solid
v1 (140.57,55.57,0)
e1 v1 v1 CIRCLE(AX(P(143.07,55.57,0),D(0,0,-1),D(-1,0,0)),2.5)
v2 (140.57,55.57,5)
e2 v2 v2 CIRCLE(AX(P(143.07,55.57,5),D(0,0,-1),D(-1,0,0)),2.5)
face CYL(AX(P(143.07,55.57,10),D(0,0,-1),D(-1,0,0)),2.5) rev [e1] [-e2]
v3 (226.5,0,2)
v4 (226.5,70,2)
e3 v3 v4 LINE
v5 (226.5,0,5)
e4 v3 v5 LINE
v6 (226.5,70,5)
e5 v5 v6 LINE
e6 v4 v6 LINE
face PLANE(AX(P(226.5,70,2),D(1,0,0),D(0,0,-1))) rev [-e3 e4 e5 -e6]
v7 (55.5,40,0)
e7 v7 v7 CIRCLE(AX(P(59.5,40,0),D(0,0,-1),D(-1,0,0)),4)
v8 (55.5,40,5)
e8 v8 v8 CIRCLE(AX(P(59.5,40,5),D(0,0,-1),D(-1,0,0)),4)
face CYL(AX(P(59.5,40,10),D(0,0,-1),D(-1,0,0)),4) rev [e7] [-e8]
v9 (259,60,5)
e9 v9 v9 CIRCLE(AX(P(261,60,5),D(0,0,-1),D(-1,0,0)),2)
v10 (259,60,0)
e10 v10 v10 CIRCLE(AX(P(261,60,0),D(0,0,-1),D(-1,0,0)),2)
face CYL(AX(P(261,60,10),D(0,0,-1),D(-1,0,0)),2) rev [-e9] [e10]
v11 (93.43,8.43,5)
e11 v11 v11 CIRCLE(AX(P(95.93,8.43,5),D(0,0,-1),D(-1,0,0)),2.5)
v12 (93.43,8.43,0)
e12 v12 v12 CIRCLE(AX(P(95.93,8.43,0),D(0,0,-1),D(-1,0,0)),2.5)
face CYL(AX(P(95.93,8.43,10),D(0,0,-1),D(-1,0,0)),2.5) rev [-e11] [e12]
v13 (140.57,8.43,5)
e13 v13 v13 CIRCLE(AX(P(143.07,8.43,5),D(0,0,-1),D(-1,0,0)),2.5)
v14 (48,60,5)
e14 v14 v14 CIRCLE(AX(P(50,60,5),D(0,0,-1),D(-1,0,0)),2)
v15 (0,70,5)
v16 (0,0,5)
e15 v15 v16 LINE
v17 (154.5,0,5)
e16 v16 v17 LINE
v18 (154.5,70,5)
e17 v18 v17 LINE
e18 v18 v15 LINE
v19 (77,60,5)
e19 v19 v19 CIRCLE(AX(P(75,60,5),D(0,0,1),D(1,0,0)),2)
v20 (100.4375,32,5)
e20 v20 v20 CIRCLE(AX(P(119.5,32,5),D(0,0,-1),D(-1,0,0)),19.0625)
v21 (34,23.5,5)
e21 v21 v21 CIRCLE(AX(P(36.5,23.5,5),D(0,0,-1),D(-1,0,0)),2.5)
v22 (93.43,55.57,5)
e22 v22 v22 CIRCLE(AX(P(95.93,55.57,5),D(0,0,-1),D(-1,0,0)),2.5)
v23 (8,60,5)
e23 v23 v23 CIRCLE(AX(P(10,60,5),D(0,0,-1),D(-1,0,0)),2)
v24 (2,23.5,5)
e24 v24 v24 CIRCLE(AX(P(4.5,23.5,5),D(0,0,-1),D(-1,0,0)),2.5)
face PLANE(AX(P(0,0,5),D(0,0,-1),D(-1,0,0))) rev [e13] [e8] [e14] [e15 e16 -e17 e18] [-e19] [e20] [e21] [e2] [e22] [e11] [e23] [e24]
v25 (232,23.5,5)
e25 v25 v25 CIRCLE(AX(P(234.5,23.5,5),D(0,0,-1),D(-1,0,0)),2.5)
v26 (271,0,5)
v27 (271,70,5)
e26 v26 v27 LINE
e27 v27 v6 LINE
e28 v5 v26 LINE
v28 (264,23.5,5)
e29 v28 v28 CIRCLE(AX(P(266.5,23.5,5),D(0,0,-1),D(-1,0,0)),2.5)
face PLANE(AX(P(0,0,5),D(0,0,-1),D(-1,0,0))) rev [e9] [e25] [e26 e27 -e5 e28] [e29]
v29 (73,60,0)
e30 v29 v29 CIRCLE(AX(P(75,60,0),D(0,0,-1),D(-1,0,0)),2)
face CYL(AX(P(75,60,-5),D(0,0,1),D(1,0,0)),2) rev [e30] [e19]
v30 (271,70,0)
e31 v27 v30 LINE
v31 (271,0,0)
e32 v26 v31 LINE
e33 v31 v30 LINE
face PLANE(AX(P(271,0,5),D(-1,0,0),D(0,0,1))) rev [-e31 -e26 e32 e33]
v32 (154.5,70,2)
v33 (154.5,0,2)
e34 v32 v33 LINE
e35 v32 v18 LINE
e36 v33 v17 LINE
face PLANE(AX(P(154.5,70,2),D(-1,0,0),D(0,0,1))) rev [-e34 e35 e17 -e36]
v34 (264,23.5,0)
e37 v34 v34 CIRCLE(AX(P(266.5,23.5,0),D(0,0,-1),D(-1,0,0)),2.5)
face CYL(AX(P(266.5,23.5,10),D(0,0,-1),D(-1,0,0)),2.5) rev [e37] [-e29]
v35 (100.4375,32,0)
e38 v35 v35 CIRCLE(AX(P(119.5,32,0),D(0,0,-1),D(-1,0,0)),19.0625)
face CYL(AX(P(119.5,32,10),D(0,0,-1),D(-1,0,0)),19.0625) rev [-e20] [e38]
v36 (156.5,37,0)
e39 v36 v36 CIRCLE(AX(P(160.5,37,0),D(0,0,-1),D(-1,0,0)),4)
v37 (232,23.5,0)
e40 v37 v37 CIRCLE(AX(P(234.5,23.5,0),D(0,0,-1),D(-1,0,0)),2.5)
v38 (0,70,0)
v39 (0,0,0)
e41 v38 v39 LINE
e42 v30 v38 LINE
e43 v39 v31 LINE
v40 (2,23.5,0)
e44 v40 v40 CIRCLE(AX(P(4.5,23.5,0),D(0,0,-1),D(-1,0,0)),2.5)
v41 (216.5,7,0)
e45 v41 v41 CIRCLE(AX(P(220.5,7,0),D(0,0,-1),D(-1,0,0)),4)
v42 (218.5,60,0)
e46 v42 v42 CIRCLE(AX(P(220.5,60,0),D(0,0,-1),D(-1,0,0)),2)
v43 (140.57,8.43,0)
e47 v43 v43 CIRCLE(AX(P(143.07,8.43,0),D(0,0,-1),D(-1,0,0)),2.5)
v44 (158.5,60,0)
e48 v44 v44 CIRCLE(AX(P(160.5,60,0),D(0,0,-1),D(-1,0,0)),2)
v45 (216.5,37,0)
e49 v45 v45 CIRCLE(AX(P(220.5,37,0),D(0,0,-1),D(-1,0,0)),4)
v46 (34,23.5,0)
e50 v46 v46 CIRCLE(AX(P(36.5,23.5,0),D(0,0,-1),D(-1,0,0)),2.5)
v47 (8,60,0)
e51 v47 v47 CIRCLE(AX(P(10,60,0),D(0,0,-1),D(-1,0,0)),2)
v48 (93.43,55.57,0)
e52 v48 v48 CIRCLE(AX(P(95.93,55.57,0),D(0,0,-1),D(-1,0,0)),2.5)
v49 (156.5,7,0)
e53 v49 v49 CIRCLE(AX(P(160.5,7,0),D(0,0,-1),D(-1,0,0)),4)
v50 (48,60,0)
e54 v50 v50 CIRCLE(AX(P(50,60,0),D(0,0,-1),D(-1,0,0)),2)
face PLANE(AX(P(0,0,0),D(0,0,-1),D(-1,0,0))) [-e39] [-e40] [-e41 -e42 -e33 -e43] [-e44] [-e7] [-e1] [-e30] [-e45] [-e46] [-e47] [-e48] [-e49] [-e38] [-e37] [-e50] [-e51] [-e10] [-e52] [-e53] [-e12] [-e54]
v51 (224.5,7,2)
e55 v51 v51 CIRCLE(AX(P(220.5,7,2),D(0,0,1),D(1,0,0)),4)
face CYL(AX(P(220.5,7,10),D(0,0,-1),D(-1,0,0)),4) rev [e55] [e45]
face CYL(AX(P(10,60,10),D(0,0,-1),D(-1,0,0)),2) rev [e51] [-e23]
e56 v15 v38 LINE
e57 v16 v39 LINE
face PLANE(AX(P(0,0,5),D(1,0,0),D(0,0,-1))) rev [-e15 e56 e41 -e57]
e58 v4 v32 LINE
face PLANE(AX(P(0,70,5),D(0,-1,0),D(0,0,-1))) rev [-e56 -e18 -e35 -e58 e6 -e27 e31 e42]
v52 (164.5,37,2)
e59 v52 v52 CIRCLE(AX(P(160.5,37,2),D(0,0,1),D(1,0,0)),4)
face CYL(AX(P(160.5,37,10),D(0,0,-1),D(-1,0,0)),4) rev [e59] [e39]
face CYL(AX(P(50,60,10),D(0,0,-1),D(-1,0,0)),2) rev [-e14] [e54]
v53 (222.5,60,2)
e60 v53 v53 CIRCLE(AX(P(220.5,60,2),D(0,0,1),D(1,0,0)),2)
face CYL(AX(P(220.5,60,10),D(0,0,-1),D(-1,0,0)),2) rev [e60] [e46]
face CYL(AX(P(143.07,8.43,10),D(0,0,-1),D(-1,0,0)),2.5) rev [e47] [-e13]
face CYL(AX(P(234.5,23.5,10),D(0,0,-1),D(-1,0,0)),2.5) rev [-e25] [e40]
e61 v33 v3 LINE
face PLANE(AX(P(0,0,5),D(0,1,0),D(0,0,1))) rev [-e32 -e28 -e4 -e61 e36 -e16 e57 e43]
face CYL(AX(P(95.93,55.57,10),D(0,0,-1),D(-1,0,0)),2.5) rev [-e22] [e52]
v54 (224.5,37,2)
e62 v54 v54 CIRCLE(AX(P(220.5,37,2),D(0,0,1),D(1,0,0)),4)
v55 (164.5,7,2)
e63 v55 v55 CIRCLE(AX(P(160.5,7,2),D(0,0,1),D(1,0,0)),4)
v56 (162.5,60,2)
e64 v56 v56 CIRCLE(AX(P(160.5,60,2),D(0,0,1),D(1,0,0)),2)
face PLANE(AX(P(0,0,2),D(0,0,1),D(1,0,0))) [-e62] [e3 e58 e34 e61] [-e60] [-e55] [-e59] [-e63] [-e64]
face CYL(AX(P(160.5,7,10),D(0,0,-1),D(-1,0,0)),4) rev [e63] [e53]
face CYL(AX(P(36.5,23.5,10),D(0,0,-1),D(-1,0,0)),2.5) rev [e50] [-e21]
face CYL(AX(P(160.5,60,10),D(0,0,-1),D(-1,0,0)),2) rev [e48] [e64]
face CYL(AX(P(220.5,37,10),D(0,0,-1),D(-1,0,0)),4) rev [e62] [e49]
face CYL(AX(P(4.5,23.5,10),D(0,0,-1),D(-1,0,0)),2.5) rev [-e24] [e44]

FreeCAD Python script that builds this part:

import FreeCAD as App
import Part
import Sketcher
from FreeCAD import Vector


def add_polygon(sketch, points):
    """Adds a closed chain of lines whose ends are joined by coincident constraints."""
    first, n = sketch.GeometryCount, len(points)
    for a, b in zip(points, points[1:] + points[:1]):
        sketch.addGeometry(Part.LineSegment(App.Vector(*a, 0), App.Vector(*b, 0)), False)
    for i in range(n):
        sketch.addConstraint(Sketcher.Constraint("Coincident", first + i, 2, first + (i + 1) % n, 1))

doc = App.newDocument("Part")
params = doc.addObject("Spreadsheet::Sheet", "Params")
for row, (alias, value) in enumerate([
    ("sketch1_width", "271 mm"),
    ("sketch1_height", "70 mm"),
    ("pad1_length", "5 mm"),
    ("sketch2_width", "72 mm"),
    ("sketch2_height", "70 mm"),
    ("pocket1_length", "3 mm"),
    ("sketch3_diameter", "8 mm"),
    ("pocket2_length", "10 mm"),
    ("sketch4_diameter", "5 mm"),
    ("pocket3_length", "10 mm"),
    ("sketch5_diameter", "5 mm"),
    ("pocket4_length", "10 mm"),
    ("sketch6_diameter", "4 mm"),
    ("pocket5_length", "10 mm"),
    ("sketch7_diameter", "5 mm"),
    ("pocket6_length", "10 mm"),
    ("sketch8_diameter", "8 mm"),
    ("pocket7_length", "10 mm"),
    ("sketch9_diameter", "4 mm"),
    ("pocket8_length", "10 mm"),
], start=1):
    params.set(f"A{row}", alias)
    params.set(f"B{row}", "=" + value)
    params.setAlias(f"B{row}", alias)

body = doc.addObject("PartDesign::Body", "Body")

# Sketch on XY plane
sketch1 = body.newObject("Sketcher::SketchObject", "Sketch")
sketch1.AttachmentSupport = (doc.getObject("XY_Plane"), [""])
sketch1.MapMode = "FlatFace"
add_polygon(sketch1, [(0, 70), (0, 0), (271, 0), (271, 70)])  # lines 0-3
sketch1.addConstraint(Sketcher.Constraint("Vertical", 0))
sketch1.addConstraint(Sketcher.Constraint("Horizontal", 1))
sketch1.addConstraint(Sketcher.Constraint("Vertical", 2))
sketch1.addConstraint(Sketcher.Constraint("Horizontal", 3))
sketch1.addConstraint(Sketcher.Constraint("Coincident", 0, 2, -1, 1))
sketch1.addConstraint(Sketcher.Constraint("DistanceX", 1, 1, 1, 2, 271.0))
sketch1.addConstraint(Sketcher.Constraint("DistanceY", 0, 2, 0, 1, 70.0))
sketch1.setExpression("Constraints[9]", "Params.sketch1_width")
sketch1.setExpression("Constraints[10]", "Params.sketch1_height")
pad1 = body.newObject("PartDesign::Pad", "Pad")
pad1.Profile = sketch1
pad1.setExpression("Length", "Params.pad1_length")

# Sketch on XY plane
sketch2 = body.newObject("Sketcher::SketchObject", "Sketch001")
sketch2.AttachmentSupport = (doc.getObject("XY_Plane"), [""])
sketch2.MapMode = "FlatFace"
sketch2.AttachmentOffset = App.Placement(Vector(0, 0, 5), App.Rotation())
add_polygon(sketch2, [(154, 70), (154, 0), (226, 0), (226, 70)])  # lines 0-3
sketch2.addConstraint(Sketcher.Constraint("Vertical", 0))
sketch2.addConstraint(Sketcher.Constraint("Horizontal", 1))
sketch2.addConstraint(Sketcher.Constraint("Vertical", 2))
sketch2.addConstraint(Sketcher.Constraint("Horizontal", 3))
sketch2.addConstraint(Sketcher.Constraint("PointOnObject", 0, 2, -1))
sketch2.addConstraint(Sketcher.Constraint("DistanceX", 1, 1, 1, 2, 72.0))
sketch2.addConstraint(Sketcher.Constraint("DistanceY", 0, 2, 0, 1, 70.0))
sketch2.addConstraint(Sketcher.Constraint("DistanceX", -1, 1, 0, 2, 154.5))
sketch2.setExpression("Constraints[9]", "Params.sketch2_width")
sketch2.setExpression("Constraints[10]", "Params.sketch2_height")
pocket1 = body.newObject("PartDesign::Pocket", "Pocket")
pocket1.Profile = sketch2
pocket1.setExpression("Length", "Params.pocket1_length")

# Sketch on XY plane
sketch3 = body.newObject("Sketcher::SketchObject", "Sketch002")
sketch3.AttachmentSupport = (doc.getObject("XY_Plane"), [""])
sketch3.MapMode = "FlatFace"
sketch3.addGeometry(Part.Circle(Vector(160.5, 37, 0), Vector(0, 0, 1), 4), False)
sketch3.addGeometry(Part.Circle(Vector(220.5, 37, 0), Vector(0, 0, 1), 4), False)
sketch3.addGeometry(Part.Circle(Vector(220.5, 7, 0), Vector(0, 0, 1), 4), False)
sketch3.addGeometry(Part.Circle(Vector(160.5, 7, 0), Vector(0, 0, 1), 4), False)
sketch3.addConstraint(Sketcher.Constraint("Equal", 0, 1))
sketch3.addConstraint(Sketcher.Constraint("Equal", 1, 2))
sketch3.addConstraint(Sketcher.Constraint("Equal", 2, 3))
sketch3.addConstraint(Sketcher.Constraint("Horizontal", 0, 3, 1, 3))
sketch3.addConstraint(Sketcher.Constraint("Horizontal", 2, 3, 3, 3))
sketch3.addConstraint(Sketcher.Constraint("Vertical", 1, 3, 2, 3))
sketch3.addConstraint(Sketcher.Constraint("Vertical", 0, 3, 3, 3))
sketch3.addConstraint(Sketcher.Constraint("Diameter", 0, 8.0))
sketch3.addConstraint(Sketcher.Constraint("DistanceY", -1, 1, 0, 3, 37.0))
sketch3.addConstraint(Sketcher.Constraint("DistanceY", -1, 1, 2, 3, 7.0))
sketch3.addConstraint(Sketcher.Constraint("DistanceX", 0, 3, 1, 3, 60.0))
sketch3.addConstraint(Sketcher.Constraint("DistanceX", -1, 1, 0, 3, 160.5))
sketch3.setExpression("Constraints[7]", "Params.sketch3_diameter")
pocket2 = body.newObject("PartDesign::Pocket", "Pocket001")
pocket2.Profile = sketch3
pocket2.setExpression("Length", "Params.pocket2_length")
pocket2.Reversed = True

# Sketch on XY plane
sketch4 = body.newObject("Sketcher::SketchObject", "Sketch003")
sketch4.AttachmentSupport = (doc.getObject("XY_Plane"), [""])
sketch4.MapMode = "FlatFace"
sketch4.addGeometry(Part.Circle(Vector(234.5, 23.5, 0), Vector(0, 0, 1), 2.5), False)
sketch4.addGeometry(Part.Circle(Vector(266.5, 23.5, 0), Vector(0, 0, 1), 2.5), False)
sketch4.addConstraint(Sketcher.Constraint("Equal", 0, 1))
sketch4.addConstraint(Sketcher.Constraint("Horizontal", 0, 3, 1, 3))
sketch4.addConstraint(Sketcher.Constraint("Diameter", 0, 5.0))
sketch4.addConstraint(Sketcher.Constraint("DistanceX", 0, 3, 1, 3, 32.0))
sketch4.addConstraint(Sketcher.Constraint("DistanceX", -1, 1, 0, 3, 234.5))
sketch4.addConstraint(Sketcher.Constraint("DistanceY", -1, 1, 0, 3, 23.5))
sketch4.setExpression("Constraints[2]", "Params.sketch4_diameter")
pocket3 = body.newObject("PartDesign::Pocket", "Pocket002")
pocket3.Profile = sketch4
pocket3.setExpression("Length", "Params.pocket3_length")
pocket3.Reversed = True

# Sketch on XY plane
sketch5 = body.newObject("Sketcher::SketchObject", "Sketch004")
sketch5.AttachmentSupport = (doc.getObject("XY_Plane"), [""])
sketch5.MapMode = "FlatFace"
sketch5.addGeometry(Part.Circle(Vector(36.5, 23.5, 0), Vector(0, 0, 1), 2.5), False)
sketch5.addGeometry(Part.Circle(Vector(4.5, 23.5, 0), Vector(0, 0, 1), 2.5), False)
sketch5.addConstraint(Sketcher.Constraint("Equal", 0, 1))
sketch5.addConstraint(Sketcher.Constraint("Horizontal", 0, 3, 1, 3))
sketch5.addConstraint(Sketcher.Constraint("Diameter", 0, 5.0))
sketch5.addConstraint(Sketcher.Constraint("DistanceX", 1, 3, 0, 3, 32.0))
sketch5.addConstraint(Sketcher.Constraint("DistanceX", -1, 1, 0, 3, 36.5))
sketch5.addConstraint(Sketcher.Constraint("DistanceY", -1, 1, 0, 3, 23.5))
sketch5.setExpression("Constraints[2]", "Params.sketch5_diameter")
pocket4 = body.newObject("PartDesign::Pocket", "Pocket003")
pocket4.Profile = sketch5
pocket4.setExpression("Length", "Params.pocket4_length")
pocket4.Reversed = True

# Sketch on XY plane
sketch6 = body.newObject("Sketcher::SketchObject", "Sketch005")
sketch6.AttachmentSupport = (doc.getObject("XY_Plane"), [""])
sketch6.MapMode = "FlatFace"
sketch6.addGeometry(Part.Circle(Vector(10, 60, 0), Vector(0, 0, 1), 2), False)
sketch6.addGeometry(Part.Circle(Vector(50, 60, 0), Vector(0, 0, 1), 2), False)
sketch6.addGeometry(Part.Circle(Vector(160.5, 60, 0), Vector(0, 0, 1), 2), False)
sketch6.addGeometry(Part.Circle(Vector(220.5, 60, 0), Vector(0, 0, 1), 2), False)
sketch6.addGeometry(Part.Circle(Vector(261, 60, 0), Vector(0, 0, 1), 2), False)
sketch6.addConstraint(Sketcher.Constraint("Equal", 0, 1))
sketch6.addConstraint(Sketcher.Constraint("Equal", 1, 2))
sketch6.addConstraint(Sketcher.Constraint("Equal", 2, 3))
sketch6.addConstraint(Sketcher.Constraint("Equal", 3, 4))
sketch6.addConstraint(Sketcher.Constraint("Horizontal", 0, 3, 1, 3))
sketch6.addConstraint(Sketcher.Constraint("Horizontal", 1, 3, 2, 3))
sketch6.addConstraint(Sketcher.Constraint("Horizontal", 2, 3, 3, 3))
sketch6.addConstraint(Sketcher.Constraint("Horizontal", 3, 3, 4, 3))
sketch6.addConstraint(Sketcher.Constraint("Diameter", 0, 4.0))
sketch6.addConstraint(Sketcher.Constraint("DistanceX", -1, 1, 0, 3, 10.0))
sketch6.addConstraint(Sketcher.Constraint("DistanceY", -1, 1, 0, 3, 60.0))
sketch6.addConstraint(Sketcher.Constraint("DistanceX", -1, 1, 1, 3, 50.0))
sketch6.addConstraint(Sketcher.Constraint("DistanceX", -1, 1, 4, 3, 261.0))
sketch6.addConstraint(Sketcher.Constraint("DistanceX", 2, 3, 3, 3, 60.0))
sketch6.addConstraint(Sketcher.Constraint("DistanceX", -1, 1, 2, 3, 160.5))
sketch6.setExpression("Constraints[8]", "Params.sketch6_diameter")
pocket5 = body.newObject("PartDesign::Pocket", "Pocket004")
pocket5.Profile = sketch6
pocket5.setExpression("Length", "Params.pocket5_length")
pocket5.Reversed = True

# Sketch on XY plane
sketch7 = body.newObject("Sketcher::SketchObject", "Sketch006")
sketch7.AttachmentSupport = (doc.getObject("XY_Plane"), [""])
sketch7.MapMode = "FlatFace"
sketch7.addGeometry(Part.Circle(Vector(119.5, 32, 0), Vector(0, 0, 1), 19.1), False)
sketch7.addGeometry(Part.Circle(Vector(95.9, 8.4, 0), Vector(0, 0, 1), 2.5), False)
sketch7.addGeometry(Part.Circle(Vector(143.1, 8.4, 0), Vector(0, 0, 1), 2.5), False)
sketch7.addGeometry(Part.Circle(Vector(95.9, 55.6, 0), Vector(0, 0, 1), 2.5), False)
sketch7.addGeometry(Part.Circle(Vector(143.1, 55.6, 0), Vector(0, 0, 1), 2.5), False)
sketch7.addConstraint(Sketcher.Constraint("Equal", 1, 2))
sketch7.addConstraint(Sketcher.Constraint("Equal", 2, 3))
sketch7.addConstraint(Sketcher.Constraint("Equal", 3, 4))
sketch7.addConstraint(Sketcher.Constraint("Horizontal", 1, 3, 2, 3))
sketch7.addConstraint(Sketcher.Constraint("Horizontal", 3, 3, 4, 3))
sketch7.addConstraint(Sketcher.Constraint("Vertical", 1, 3, 3, 3))
sketch7.addConstraint(Sketcher.Constraint("Vertical", 2, 3, 4, 3))
sketch7.addConstraint(Sketcher.Constraint("Diameter", 1, 5.0))
sketch7.addConstraint(Sketcher.Constraint("Diameter", 0, 38.125))
sketch7.addConstraint(Sketcher.Constraint("DistanceY", -1, 1, 0, 3, 32.0))
sketch7.addConstraint(Sketcher.Constraint("DistanceX", -1, 1, 0, 3, 119.5))
sketch7.addConstraint(Sketcher.Constraint("DistanceX", -1, 1, 1, 3, 95.93))
sketch7.addConstraint(Sketcher.Constraint("DistanceY", -1, 1, 1, 3, 8.43))
sketch7.addConstraint(Sketcher.Constraint("DistanceX", -1, 1, 2, 3, 143.07))
sketch7.addConstraint(Sketcher.Constraint("DistanceY", -1, 1, 3, 3, 55.57))
sketch7.setExpression("Constraints[7]", "Params.sketch7_diameter")
pocket6 = body.newObject("PartDesign::Pocket", "Pocket005")
pocket6.Profile = sketch7
pocket6.setExpression("Length", "Params.pocket6_length")
pocket6.Reversed = True

# Sketch on XY plane
sketch8 = body.newObject("Sketcher::SketchObject", "Sketch007")
sketch8.AttachmentSupport = (doc.getObject("XY_Plane"), [""])
sketch8.MapMode = "FlatFace"
sketch8.addGeometry(Part.Circle(Vector(59.5, 40, 0), Vector(0, 0, 1), 4), False)
sketch8.addConstraint(Sketcher.Constraint("Diameter", 0, 8.0))
sketch8.addConstraint(Sketcher.Constraint("DistanceY", -1, 1, 0, 3, 40.0))
sketch8.addConstraint(Sketcher.Constraint("DistanceX", -1, 1, 0, 3, 59.5))
sketch8.setExpression("Constraints[0]", "Params.sketch8_diameter")
pocket7 = body.newObject("PartDesign::Pocket", "Pocket006")
pocket7.Profile = sketch8
pocket7.setExpression("Length", "Params.pocket7_length")
pocket7.Reversed = True

# Sketch on XY plane
sketch9 = body.newObject("Sketcher::SketchObject", "Sketch008")
sketch9.AttachmentSupport = (doc.getObject("XY_Plane"), [""])
sketch9.MapMode = "FlatFace"
sketch9.AttachmentOffset = App.Placement(Vector(0, 0, 5), App.Rotation())
sketch9.addGeometry(Part.Circle(Vector(75, 60, 0), Vector(0, 0, 1), 2), False)
sketch9.addConstraint(Sketcher.Constraint("Diameter", 0, 4.0))
sketch9.addConstraint(Sketcher.Constraint("DistanceX", -1, 1, 0, 3, 75.0))
sketch9.addConstraint(Sketcher.Constraint("DistanceY", -1, 1, 0, 3, 60.0))
sketch9.setExpression("Constraints[0]", "Params.sketch9_diameter")
pocket8 = body.newObject("PartDesign::Pocket", "Pocket007")
pocket8.Profile = sketch9
pocket8.setExpression("Length", "Params.pocket8_length")

doc.recompute()
